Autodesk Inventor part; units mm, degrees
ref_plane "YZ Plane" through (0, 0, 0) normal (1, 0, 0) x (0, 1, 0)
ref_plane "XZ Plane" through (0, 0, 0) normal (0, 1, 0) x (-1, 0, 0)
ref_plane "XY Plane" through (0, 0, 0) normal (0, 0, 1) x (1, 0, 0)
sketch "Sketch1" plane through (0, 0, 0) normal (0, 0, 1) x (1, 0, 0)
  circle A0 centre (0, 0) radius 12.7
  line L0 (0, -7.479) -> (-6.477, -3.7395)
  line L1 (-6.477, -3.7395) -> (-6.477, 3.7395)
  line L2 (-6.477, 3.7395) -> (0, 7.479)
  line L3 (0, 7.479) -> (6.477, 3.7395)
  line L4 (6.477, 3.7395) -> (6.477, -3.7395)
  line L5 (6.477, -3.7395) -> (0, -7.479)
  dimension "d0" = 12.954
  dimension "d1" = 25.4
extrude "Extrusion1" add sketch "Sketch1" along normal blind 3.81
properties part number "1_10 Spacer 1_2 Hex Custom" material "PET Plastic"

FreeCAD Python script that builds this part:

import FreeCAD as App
import Part
import Sketcher
Q = App.Units.Quantity


def add_polygon(sketch, points):
    """Adds a closed chain of lines whose ends are joined by coincident constraints."""
    first, n = sketch.GeometryCount, len(points)
    for a, b in zip(points, points[1:] + points[:1]):
        sketch.addGeometry(Part.LineSegment(App.Vector(*a, 0), App.Vector(*b, 0)), False)
    for i in range(n):
        sketch.addConstraint(Sketcher.Constraint("Coincident", first + i, 2, first + (i + 1) % n, 1))

doc = App.newDocument("Part")
params = doc.addObject("Spreadsheet::Sheet", "Params")
for row, (alias, value) in enumerate([
    ("sketch1_diameter", "1 in"),
    ("pad1_length", "0.15 in"),
], start=1):
    params.set(f"A{row}", alias)
    params.set(f"B{row}", "=" + value)
    params.setAlias(f"B{row}", alias)

body = doc.addObject("PartDesign::Body", "Body")

sketch1 = doc.addObject("Sketcher::SketchObject", "Sketch")
body.addObject(sketch1)
sketch1.AttachmentSupport = (doc.XY_Plane, [""])
sketch1.MapMode = "FlatFace"
sketch1.addGeometry(Part.Circle(App.Vector(0, 0, 0), App.Vector(0, 0, 1), 12.7), False)
add_polygon(sketch1, [(6.477, -3.7395), (0, -7.479), (-6.477, -3.7395), (-6.477, 3.7395), (0, 7.479), (6.477, 3.7395)])
sketch1.addConstraint([
    Sketcher.Constraint("Vertical", 3),
    Sketcher.Constraint("Vertical", 6),
    Sketcher.Constraint("Coincident", 0, 3, -1, 1),
    Sketcher.Constraint("Symmetric", 1, 2, 4, 2, -1, 1),
    Sketcher.Constraint("Symmetric", 2, 2, 5, 2, -1, 1),
    Sketcher.Constraint("PointOnObject", 1, 2, -2),
    Sketcher.Constraint("Parallel", 1, 4),
    Sketcher.Constraint("Horizontal", 3, 2, 5, 2),
    Sketcher.Constraint("Diameter", 0, Q("1 in")),
    Sketcher.Constraint("DistanceX", 3, 2, 5, 2, Q("0.51 in")),
    Sketcher.Constraint("Angle", 1, Q("-150 deg")),
    Sketcher.Constraint("DistanceY", 3, 1, 3, 2, 7.479),
])
sketch1.setExpression("Constraints[14]", "Params.sketch1_diameter")
pad1 = doc.addObject("PartDesign::Pad", "Pad")
body.addObject(pad1)
pad1.Profile = sketch1
pad1.setExpression("Length", "Params.pad1_length")

doc.recompute()
